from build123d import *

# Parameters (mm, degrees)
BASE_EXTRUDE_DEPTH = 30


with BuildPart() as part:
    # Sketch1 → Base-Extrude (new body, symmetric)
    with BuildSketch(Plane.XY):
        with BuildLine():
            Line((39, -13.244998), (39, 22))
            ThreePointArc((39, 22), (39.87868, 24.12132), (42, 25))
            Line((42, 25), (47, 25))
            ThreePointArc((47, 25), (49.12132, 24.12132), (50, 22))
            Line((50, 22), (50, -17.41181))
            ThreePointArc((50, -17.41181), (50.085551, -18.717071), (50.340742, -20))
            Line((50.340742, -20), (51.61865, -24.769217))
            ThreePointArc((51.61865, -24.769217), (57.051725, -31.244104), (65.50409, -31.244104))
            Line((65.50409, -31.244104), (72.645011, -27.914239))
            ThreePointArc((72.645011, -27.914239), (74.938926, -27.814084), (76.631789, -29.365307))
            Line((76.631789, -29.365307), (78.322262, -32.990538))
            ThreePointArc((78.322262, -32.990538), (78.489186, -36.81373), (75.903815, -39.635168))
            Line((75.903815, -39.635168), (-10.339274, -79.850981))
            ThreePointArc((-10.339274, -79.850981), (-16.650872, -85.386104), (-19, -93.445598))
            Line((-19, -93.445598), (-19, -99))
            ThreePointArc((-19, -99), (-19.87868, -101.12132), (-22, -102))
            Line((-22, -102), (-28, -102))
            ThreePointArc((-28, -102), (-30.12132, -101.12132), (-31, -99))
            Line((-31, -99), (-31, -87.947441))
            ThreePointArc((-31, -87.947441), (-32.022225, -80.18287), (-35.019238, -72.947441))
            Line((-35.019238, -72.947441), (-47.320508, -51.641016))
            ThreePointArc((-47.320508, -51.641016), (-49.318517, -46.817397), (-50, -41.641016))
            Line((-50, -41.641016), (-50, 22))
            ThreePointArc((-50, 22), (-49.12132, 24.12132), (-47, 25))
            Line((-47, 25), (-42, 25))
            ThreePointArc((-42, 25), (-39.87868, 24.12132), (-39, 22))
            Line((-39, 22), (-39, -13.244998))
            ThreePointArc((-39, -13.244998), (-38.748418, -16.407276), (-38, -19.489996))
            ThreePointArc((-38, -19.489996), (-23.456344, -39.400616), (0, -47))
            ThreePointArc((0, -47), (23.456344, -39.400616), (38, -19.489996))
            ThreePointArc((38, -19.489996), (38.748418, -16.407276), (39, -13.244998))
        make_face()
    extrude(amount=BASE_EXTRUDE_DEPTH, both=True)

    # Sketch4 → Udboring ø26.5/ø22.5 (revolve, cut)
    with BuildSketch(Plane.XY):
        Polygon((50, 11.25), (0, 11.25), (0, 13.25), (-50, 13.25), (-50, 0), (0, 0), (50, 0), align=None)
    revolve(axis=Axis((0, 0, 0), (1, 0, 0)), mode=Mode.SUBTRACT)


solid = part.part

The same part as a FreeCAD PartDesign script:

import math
import FreeCAD as App
import Part
import Sketcher
Q = App.Units.Quantity


def add_polygon(sketch, points):
    """Adds a closed chain of lines whose ends are joined by coincident constraints."""
    first, n = sketch.GeometryCount, len(points)
    for a, b in zip(points, points[1:] + points[:1]):
        sketch.addGeometry(Part.LineSegment(App.Vector(*a, 0), App.Vector(*b, 0)), False)
    for i in range(n):
        sketch.addConstraint(Sketcher.Constraint("Coincident", first + i, 2, first + (i + 1) % n, 1))

doc = App.newDocument("Part")
params = doc.addObject("Spreadsheet::Sheet", "Params")
for row, (alias, value) in enumerate([
    ("sketch1_radius", "40 mm"),
    ("sketch1_radius2", "3.000001 mm"),
    ("sketch1_radius3", "3.000001 mm"),
    ("sketch1_radius4", "3.000001 mm"),
    ("sketch1_radius5", "3.000001 mm"),
    ("pad1_length", "60 mm"),
    ("sketch2_width", "50 mm"),
    ("sketch2_height", "2 mm"),
    ("sketch2_height2", "13.25 mm"),
    ("groove_angle", "360 deg"),
], start=1):
    params.set(f"A{row}", alias)
    params.set(f"B{row}", "=" + value)
    params.setAlias(f"B{row}", alias)

body = doc.addObject("PartDesign::Body", "Body")

# Sketch on XY plane
sketch1 = doc.addObject("Sketcher::SketchObject", "Sketch")
body.addObject(sketch1)
sketch1.AttachmentSupport = (doc.XY_Plane, [""])
sketch1.MapMode = "FlatFace"
sketch1.addGeometry([
    Part.LineSegment(App.Vector(39, 22, 0), App.Vector(39, -13.244998, 0)),  # 0
    Part.ArcOfCircle(Part.Circle(App.Vector(19.000031, -13.245003, 0), App.Vector(0, 0, 1), 19.999969), math.radians(-18.194886), math.radians(0.000014)),  # 1
    Part.ArcOfCircle(Part.Circle(App.Vector(0, -7, 0), App.Vector(0, 0, 1), 40), math.radians(-90), math.radians(-18.194873)),  # 2
    Part.ArcOfCircle(Part.Circle(App.Vector(0, -7, 0), App.Vector(0, 0, 1), 40), math.radians(-161.805127), math.radians(-90)),  # 3
    Part.ArcOfCircle(Part.Circle(App.Vector(-19.000031, -13.245003, 0), App.Vector(0, 0, 1), 19.999969), math.radians(179.999986), math.radians(198.194886)),  # 4
    Part.LineSegment(App.Vector(-39, -13.244998, 0), App.Vector(-39, 22, 0)),  # 5
    Part.ArcOfCircle(Part.Circle(App.Vector(-42.000001, 21.999999, 0), App.Vector(0, 0, 1), 3.000001), math.radians(0.000022), math.radians(89.999978)),  # 6
    Part.LineSegment(App.Vector(-42, 25, 0), App.Vector(-47, 25, 0)),  # 7
    Part.ArcOfCircle(Part.Circle(App.Vector(-46.999999, 21.999999, 0), App.Vector(0, 0, 1), 3.000001), math.radians(90.000022), math.radians(179.999978)),  # 8
    Part.LineSegment(App.Vector(-50, 22, 0), App.Vector(-50, -41.641016, 0)),  # 9
    Part.ArcOfCircle(Part.Circle(App.Vector(-30.000015, -41.64102, 0), App.Vector(0, 0, 1), 19.999985), math.radians(179.999989), math.radians(210.000012)),  # 10
    Part.LineSegment(App.Vector(-47.320508, -51.641016, 0), App.Vector(-35.019238, -72.947441, 0)),  # 11
    Part.ArcOfCircle(Part.Circle(App.Vector(-60.999995, -87.94744, 0), App.Vector(0, 0, 1), 29.999995), math.radians(-0.000002), math.radians(30.000003)),  # 12
    Part.LineSegment(App.Vector(-31, -87.947441, 0), App.Vector(-31, -99, 0)),  # 13
    Part.ArcOfCircle(Part.Circle(App.Vector(-27.999999, -98.999999, 0), App.Vector(0, 0, 1), 3.000001), math.radians(-179.999978), math.radians(-90.000022)),  # 14
    Part.LineSegment(App.Vector(-28, -102, 0), App.Vector(-22, -102, 0)),  # 15
    Part.ArcOfCircle(Part.Circle(App.Vector(-22.000001, -98.999999, 0), App.Vector(0, 0, 1), 3.000001), math.radians(-89.999978), math.radians(-0.000022)),  # 16
    Part.LineSegment(App.Vector(-19, -99, 0), App.Vector(-19, -93.445598, 0)),  # 17
    Part.ArcOfCircle(Part.Circle(App.Vector(-4, -93.445598, 0), App.Vector(0, 0, 1), 15), math.radians(114.999999), math.radians(180.000002)),  # 18
    Part.LineSegment(App.Vector(-10.339274, -79.850981, 0), App.Vector(75.903815, -39.635168, 0)),  # 19
    Part.ArcOfCircle(Part.Circle(App.Vector(73.790722, -35.103629, 0), App.Vector(0, 0, 1), 5), math.radians(-64.999987), math.radians(24.999995)),  # 20
    Part.LineSegment(App.Vector(78.322262, -32.990538, 0), App.Vector(76.631789, -29.365307, 0)),  # 21
    Part.ArcOfCircle(Part.Circle(App.Vector(73.912866, -30.633161, 0), App.Vector(0, 0, 1), 2.999999), math.radians(24.999997), math.radians(115.000017)),  # 22
    Part.LineSegment(App.Vector(72.645011, -27.914239, 0), App.Vector(65.50409, -31.244104, 0)),  # 23
    Part.ArcOfCircle(Part.Circle(App.Vector(61.277907, -22.181027, 0), App.Vector(0, 0, 1), 9.999999), math.radians(-165.000001), math.radians(-64.999998)),  # 24
    Part.LineSegment(App.Vector(51.61865, -24.769217, 0), App.Vector(50.340742, -20, 0)),  # 25
    Part.ArcOfCircle(Part.Circle(App.Vector(59.999948, -17.411815, 0), App.Vector(0, 0, 1), 9.999948), math.radians(179.999969), math.radians(195.000045)),  # 26
    Part.LineSegment(App.Vector(50, -17.41181, 0), App.Vector(50, 22, 0)),  # 27
    Part.ArcOfCircle(Part.Circle(App.Vector(46.999999, 21.999999, 0), App.Vector(0, 0, 1), 3.000001), math.radians(0.000022), math.radians(89.999978)),  # 28
    Part.LineSegment(App.Vector(47, 25, 0), App.Vector(42, 25, 0)),  # 29
    Part.ArcOfCircle(Part.Circle(App.Vector(42.000001, 21.999999, 0), App.Vector(0, 0, 1), 3.000001), math.radians(90.000022), math.radians(179.999978)),  # 30
], False)
sketch1.addConstraint([
    Sketcher.Constraint("Coincident", 0, 2, 1, 2),
    Sketcher.Constraint("Coincident", 1, 1, 2, 2),
    Sketcher.Constraint("Coincident", 2, 1, 3, 2),
    Sketcher.Constraint("Coincident", 3, 1, 4, 2),
    Sketcher.Constraint("Coincident", 4, 1, 5, 1),
    Sketcher.Constraint("Coincident", 5, 2, 6, 1),
    Sketcher.Constraint("Coincident", 6, 2, 7, 1),
    Sketcher.Constraint("Coincident", 7, 2, 8, 1),
    Sketcher.Constraint("Coincident", 8, 2, 9, 1),
    Sketcher.Constraint("Coincident", 9, 2, 10, 1),
    Sketcher.Constraint("Coincident", 10, 2, 11, 1),
    Sketcher.Constraint("Coincident", 11, 2, 12, 2),
    Sketcher.Constraint("Coincident", 12, 1, 13, 1),
    Sketcher.Constraint("Coincident", 13, 2, 14, 1),
    Sketcher.Constraint("Coincident", 14, 2, 15, 1),
    Sketcher.Constraint("Coincident", 15, 2, 16, 1),
    Sketcher.Constraint("Coincident", 16, 2, 17, 1),
    Sketcher.Constraint("Coincident", 17, 2, 18, 2),
    Sketcher.Constraint("Coincident", 18, 1, 19, 1),
    Sketcher.Constraint("Coincident", 19, 2, 20, 1),
    Sketcher.Constraint("Coincident", 20, 2, 21, 1),
    Sketcher.Constraint("Coincident", 21, 2, 22, 1),
    Sketcher.Constraint("Coincident", 22, 2, 23, 1),
    Sketcher.Constraint("Coincident", 23, 2, 24, 2),
    Sketcher.Constraint("Coincident", 24, 1, 25, 1),
    Sketcher.Constraint("Coincident", 25, 2, 26, 2),
    Sketcher.Constraint("Coincident", 26, 1, 27, 1),
    Sketcher.Constraint("Coincident", 27, 2, 28, 1),
    Sketcher.Constraint("Coincident", 28, 2, 29, 1),
    Sketcher.Constraint("Coincident", 29, 2, 30, 1),
    Sketcher.Constraint("Coincident", 30, 2, 0, 1),
    Sketcher.Constraint("Vertical", 0),
    Sketcher.Constraint("Vertical", 5),
    Sketcher.Constraint("Horizontal", 7),
    Sketcher.Constraint("Vertical", 9),
    Sketcher.Constraint("Vertical", 13),
    Sketcher.Constraint("Horizontal", 15),
    Sketcher.Constraint("Vertical", 17),
    Sketcher.Constraint("Vertical", 27),
    Sketcher.Constraint("Horizontal", 29),
    Sketcher.Constraint("Coincident", 3, 3, 2, 3),
    Sketcher.Constraint("PointOnObject", 2, 3, -2),
    Sketcher.Constraint("PointOnObject", 2, 1, -2),
    Sketcher.Constraint("Radius", 2, Q("40 mm")),
    Sketcher.Constraint("Radius", 6, Q("3.000001 mm")),
    Sketcher.Constraint("Radius", 8, Q("3.000001 mm")),
    Sketcher.Constraint("Radius", 14, Q("3.000001 mm")),
    Sketcher.Constraint("Radius", 16, Q("3.000001 mm")),
    Sketcher.Constraint("Radius", 18, Q("15 mm")),
    Sketcher.Constraint("Radius", 20, Q("5 mm")),
    Sketcher.Constraint("Radius", 22, Q("2.999999 mm")),
    Sketcher.Constraint("Radius", 24, Q("9.999999 mm")),
    Sketcher.Constraint("Radius", 28, Q("3.000001 mm")),
    Sketcher.Constraint("Radius", 30, Q("3.000001 mm")),
    Sketcher.Constraint("DistanceX", 7, 2, 7, 1, Q("5 mm")),
    Sketcher.Constraint("DistanceX", 15, 1, 15, 2, Q("6 mm")),
    Sketcher.Constraint("DistanceX", 29, 2, 29, 1, Q("5 mm")),
    Sketcher.Constraint("Distance", 21, Q("4 mm")),
    Sketcher.Constraint("DistanceY", 2, 3, -1, 1, Q("7 mm")),
    Sketcher.Constraint("DistanceX", 6, 3, -1, 1, Q("42.000001 mm")),
    Sketcher.Constraint("DistanceY", -1, 1, 6, 3, Q("21.999999 mm")),
    Sketcher.Constraint("DistanceX", 8, 3, -1, 1, Q("46.999999 mm")),
    Sketcher.Constraint("DistanceX", 14, 3, -1, 1, Q("27.999999 mm")),
    Sketcher.Constraint("DistanceY", 14, 3, -1, 1, Q("98.999999 mm")),
    Sketcher.Constraint("DistanceX", 16, 3, -1, 1, Q("22.000001 mm")),
    Sketcher.Constraint("DistanceX", -1, 1, 28, 3, Q("46.999999 mm")),
    Sketcher.Constraint("DistanceY", -1, 1, 28, 3, Q("21.999999 mm")),
    Sketcher.Constraint("DistanceX", -1, 1, 30, 3, Q("42.000001 mm")),
    Sketcher.Constraint("DistanceX", -1, 1, 1, 1, Q("38 mm")),
    Sketcher.Constraint("DistanceX", 3, 1, -1, 1, Q("38 mm")),
    Sketcher.Constraint("DistanceY", -1, 1, 5, 2, Q("22 mm")),
    Sketcher.Constraint("DistanceX", 6, 2, -1, 1, Q("42 mm")),
    Sketcher.Constraint("DistanceY", -1, 1, 8, 2, Q("22 mm")),
    Sketcher.Constraint("DistanceY", 13, 2, -1, 1, Q("99 mm")),
    Sketcher.Constraint("DistanceX", 14, 2, -1, 1, Q("28 mm")),
    Sketcher.Constraint("DistanceY", 16, 2, -1, 1, Q("99 mm")),
    Sketcher.Constraint("DistanceY", 25, 2, -1, 1, Q("20 mm")),
    Sketcher.Constraint("DistanceY", -1, 1, 27, 2, Q("22 mm")),
    Sketcher.Constraint("DistanceX", -1, 1, 28, 2, Q("47 mm")),
    Sketcher.Constraint("DistanceY", -1, 1, 30, 2, Q("22 mm")),
    Sketcher.Constraint("DistanceY", 10, 2, 9, 2, Q("10 mm")),
    Sketcher.Constraint("DistanceY", 12, 3, 11, 2, Q("14.999999 mm")),
    Sketcher.Constraint("DistanceY", 12, 1, 11, 2, Q("15 mm")),
    Sketcher.Constraint("DistanceY", 0, 2, 0, 1, Q("35.244998 mm")),
    Sketcher.Constraint("DistanceY", 5, 1, 5, 2, Q("35.244998 mm")),
    Sketcher.Constraint("Radius", 1, Q("19.999969 mm")),
    Sketcher.Constraint("Radius", 4, Q("19.999969 mm")),
    Sketcher.Constraint("DistanceY", 17, 1, 17, 2, Q("5.554402 mm")),
    Sketcher.Constraint("Radius", 10, Q("19.999985 mm")),
    Sketcher.Constraint("Radius", 12, Q("29.999995 mm")),
    Sketcher.Constraint("Radius", 26, Q("9.999948 mm")),
    Sketcher.Constraint("DistanceY", 13, 2, 13, 1, Q("11.052559 mm")),
    Sketcher.Constraint("DistanceY", 27, 1, 27, 2, Q("39.41181 mm")),
    Sketcher.Constraint("DistanceY", 16, 3, 18, 3, Q("5.554401 mm")),
    Sketcher.Constraint("DistanceY", 20, 2, 22, 2, Q("5.076299 mm")),
    Sketcher.Constraint("DistanceX", 23, 2, 21, 2, Q("11.127699 mm")),
    Sketcher.Constraint("DistanceY", 24, 1, 26, 3, Q("7.357402 mm")),
    Sketcher.Constraint("Distance", 11, Q("24.60254 mm")),
    Sketcher.Constraint("Distance", 19, Q("95.15872 mm")),
    Sketcher.Constraint("DistanceY", 9, 2, 9, 1, Q("63.641016 mm")),
    Sketcher.Constraint("DistanceY", 20, 3, -1, 1, Q("35.103629 mm")),
    Sketcher.Constraint("DistanceY", 22, 3, -1, 1, Q("30.633161 mm")),
    Sketcher.Constraint("DistanceY", 18, 1, -1, 1, Q("79.850981 mm")),
    Sketcher.Constraint("DistanceX", -1, 1, 20, 2, Q("78.322262 mm")),
    Sketcher.Constraint("DistanceY", 20, 2, -1, 1, Q("32.990538 mm")),
    Sketcher.Constraint("DistanceX", -1, 1, 21, 2, Q("76.631789 mm")),
    Sketcher.Constraint("DistanceX", -1, 1, 24, 1, Q("51.61865 mm")),
    Sketcher.Constraint("DistanceX", 24, 3, 22, 3, Q("12.634959 mm")),
    Sketcher.Constraint("DistanceY", 24, 3, 0, 2, Q("8.936029 mm")),
])
sketch1.setExpression("Constraints[43]", "Params.sketch1_radius")
sketch1.setExpression("Constraints[44]", "Params.sketch1_radius2")
sketch1.setExpression("Constraints[45]", "Params.sketch1_radius3")
sketch1.setExpression("Constraints[46]", "Params.sketch1_radius4")
sketch1.setExpression("Constraints[47]", "Params.sketch1_radius5")
pad1 = doc.addObject("PartDesign::Pad", "Pad")
body.addObject(pad1)
pad1.Profile = sketch1
pad1.setExpression("Length", "Params.pad1_length")
pad1.Midplane = True

# Sketch on XY plane
sketch2 = doc.addObject("Sketcher::SketchObject", "Sketch001")
body.addObject(sketch2)
sketch2.AttachmentSupport = (doc.XY_Plane, [""])
sketch2.MapMode = "FlatFace"
add_polygon(sketch2, [(50, 11.2), (0, 11.2), (0, 13.2), (-50, 13.2), (-50, 0), (50, 0)])  # lines 0-5
sketch2.addConstraint([
    Sketcher.Constraint("Horizontal", 0),
    Sketcher.Constraint("Vertical", 1),
    Sketcher.Constraint("Horizontal", 2),
    Sketcher.Constraint("Vertical", 3),
    Sketcher.Constraint("Horizontal", 4),
    Sketcher.Constraint("Vertical", 5),
    Sketcher.Constraint("Symmetric", 3, 2, 4, 2, -1, 1),
    Sketcher.Constraint("PointOnObject", 0, 2, -2),
    Sketcher.Constraint("DistanceX", 0, 2, 0, 1, Q("50 mm")),
    Sketcher.Constraint("DistanceY", 1, 1, 1, 2, Q("2 mm")),
    Sketcher.Constraint("DistanceY", 3, 2, 3, 1, Q("13.25 mm")),
])
sketch2.setExpression("Constraints[14]", "Params.sketch2_width")
sketch2.setExpression("Constraints[15]", "Params.sketch2_height")
sketch2.setExpression("Constraints[16]", "Params.sketch2_height2")
groove = doc.addObject("PartDesign::Groove", "Groove")
body.addObject(groove)
groove.Profile = sketch2
groove.ReferenceAxis = (sketch2, ["H_Axis"])
groove.setExpression("Angle", "Params.groove_angle")

doc.recompute()
